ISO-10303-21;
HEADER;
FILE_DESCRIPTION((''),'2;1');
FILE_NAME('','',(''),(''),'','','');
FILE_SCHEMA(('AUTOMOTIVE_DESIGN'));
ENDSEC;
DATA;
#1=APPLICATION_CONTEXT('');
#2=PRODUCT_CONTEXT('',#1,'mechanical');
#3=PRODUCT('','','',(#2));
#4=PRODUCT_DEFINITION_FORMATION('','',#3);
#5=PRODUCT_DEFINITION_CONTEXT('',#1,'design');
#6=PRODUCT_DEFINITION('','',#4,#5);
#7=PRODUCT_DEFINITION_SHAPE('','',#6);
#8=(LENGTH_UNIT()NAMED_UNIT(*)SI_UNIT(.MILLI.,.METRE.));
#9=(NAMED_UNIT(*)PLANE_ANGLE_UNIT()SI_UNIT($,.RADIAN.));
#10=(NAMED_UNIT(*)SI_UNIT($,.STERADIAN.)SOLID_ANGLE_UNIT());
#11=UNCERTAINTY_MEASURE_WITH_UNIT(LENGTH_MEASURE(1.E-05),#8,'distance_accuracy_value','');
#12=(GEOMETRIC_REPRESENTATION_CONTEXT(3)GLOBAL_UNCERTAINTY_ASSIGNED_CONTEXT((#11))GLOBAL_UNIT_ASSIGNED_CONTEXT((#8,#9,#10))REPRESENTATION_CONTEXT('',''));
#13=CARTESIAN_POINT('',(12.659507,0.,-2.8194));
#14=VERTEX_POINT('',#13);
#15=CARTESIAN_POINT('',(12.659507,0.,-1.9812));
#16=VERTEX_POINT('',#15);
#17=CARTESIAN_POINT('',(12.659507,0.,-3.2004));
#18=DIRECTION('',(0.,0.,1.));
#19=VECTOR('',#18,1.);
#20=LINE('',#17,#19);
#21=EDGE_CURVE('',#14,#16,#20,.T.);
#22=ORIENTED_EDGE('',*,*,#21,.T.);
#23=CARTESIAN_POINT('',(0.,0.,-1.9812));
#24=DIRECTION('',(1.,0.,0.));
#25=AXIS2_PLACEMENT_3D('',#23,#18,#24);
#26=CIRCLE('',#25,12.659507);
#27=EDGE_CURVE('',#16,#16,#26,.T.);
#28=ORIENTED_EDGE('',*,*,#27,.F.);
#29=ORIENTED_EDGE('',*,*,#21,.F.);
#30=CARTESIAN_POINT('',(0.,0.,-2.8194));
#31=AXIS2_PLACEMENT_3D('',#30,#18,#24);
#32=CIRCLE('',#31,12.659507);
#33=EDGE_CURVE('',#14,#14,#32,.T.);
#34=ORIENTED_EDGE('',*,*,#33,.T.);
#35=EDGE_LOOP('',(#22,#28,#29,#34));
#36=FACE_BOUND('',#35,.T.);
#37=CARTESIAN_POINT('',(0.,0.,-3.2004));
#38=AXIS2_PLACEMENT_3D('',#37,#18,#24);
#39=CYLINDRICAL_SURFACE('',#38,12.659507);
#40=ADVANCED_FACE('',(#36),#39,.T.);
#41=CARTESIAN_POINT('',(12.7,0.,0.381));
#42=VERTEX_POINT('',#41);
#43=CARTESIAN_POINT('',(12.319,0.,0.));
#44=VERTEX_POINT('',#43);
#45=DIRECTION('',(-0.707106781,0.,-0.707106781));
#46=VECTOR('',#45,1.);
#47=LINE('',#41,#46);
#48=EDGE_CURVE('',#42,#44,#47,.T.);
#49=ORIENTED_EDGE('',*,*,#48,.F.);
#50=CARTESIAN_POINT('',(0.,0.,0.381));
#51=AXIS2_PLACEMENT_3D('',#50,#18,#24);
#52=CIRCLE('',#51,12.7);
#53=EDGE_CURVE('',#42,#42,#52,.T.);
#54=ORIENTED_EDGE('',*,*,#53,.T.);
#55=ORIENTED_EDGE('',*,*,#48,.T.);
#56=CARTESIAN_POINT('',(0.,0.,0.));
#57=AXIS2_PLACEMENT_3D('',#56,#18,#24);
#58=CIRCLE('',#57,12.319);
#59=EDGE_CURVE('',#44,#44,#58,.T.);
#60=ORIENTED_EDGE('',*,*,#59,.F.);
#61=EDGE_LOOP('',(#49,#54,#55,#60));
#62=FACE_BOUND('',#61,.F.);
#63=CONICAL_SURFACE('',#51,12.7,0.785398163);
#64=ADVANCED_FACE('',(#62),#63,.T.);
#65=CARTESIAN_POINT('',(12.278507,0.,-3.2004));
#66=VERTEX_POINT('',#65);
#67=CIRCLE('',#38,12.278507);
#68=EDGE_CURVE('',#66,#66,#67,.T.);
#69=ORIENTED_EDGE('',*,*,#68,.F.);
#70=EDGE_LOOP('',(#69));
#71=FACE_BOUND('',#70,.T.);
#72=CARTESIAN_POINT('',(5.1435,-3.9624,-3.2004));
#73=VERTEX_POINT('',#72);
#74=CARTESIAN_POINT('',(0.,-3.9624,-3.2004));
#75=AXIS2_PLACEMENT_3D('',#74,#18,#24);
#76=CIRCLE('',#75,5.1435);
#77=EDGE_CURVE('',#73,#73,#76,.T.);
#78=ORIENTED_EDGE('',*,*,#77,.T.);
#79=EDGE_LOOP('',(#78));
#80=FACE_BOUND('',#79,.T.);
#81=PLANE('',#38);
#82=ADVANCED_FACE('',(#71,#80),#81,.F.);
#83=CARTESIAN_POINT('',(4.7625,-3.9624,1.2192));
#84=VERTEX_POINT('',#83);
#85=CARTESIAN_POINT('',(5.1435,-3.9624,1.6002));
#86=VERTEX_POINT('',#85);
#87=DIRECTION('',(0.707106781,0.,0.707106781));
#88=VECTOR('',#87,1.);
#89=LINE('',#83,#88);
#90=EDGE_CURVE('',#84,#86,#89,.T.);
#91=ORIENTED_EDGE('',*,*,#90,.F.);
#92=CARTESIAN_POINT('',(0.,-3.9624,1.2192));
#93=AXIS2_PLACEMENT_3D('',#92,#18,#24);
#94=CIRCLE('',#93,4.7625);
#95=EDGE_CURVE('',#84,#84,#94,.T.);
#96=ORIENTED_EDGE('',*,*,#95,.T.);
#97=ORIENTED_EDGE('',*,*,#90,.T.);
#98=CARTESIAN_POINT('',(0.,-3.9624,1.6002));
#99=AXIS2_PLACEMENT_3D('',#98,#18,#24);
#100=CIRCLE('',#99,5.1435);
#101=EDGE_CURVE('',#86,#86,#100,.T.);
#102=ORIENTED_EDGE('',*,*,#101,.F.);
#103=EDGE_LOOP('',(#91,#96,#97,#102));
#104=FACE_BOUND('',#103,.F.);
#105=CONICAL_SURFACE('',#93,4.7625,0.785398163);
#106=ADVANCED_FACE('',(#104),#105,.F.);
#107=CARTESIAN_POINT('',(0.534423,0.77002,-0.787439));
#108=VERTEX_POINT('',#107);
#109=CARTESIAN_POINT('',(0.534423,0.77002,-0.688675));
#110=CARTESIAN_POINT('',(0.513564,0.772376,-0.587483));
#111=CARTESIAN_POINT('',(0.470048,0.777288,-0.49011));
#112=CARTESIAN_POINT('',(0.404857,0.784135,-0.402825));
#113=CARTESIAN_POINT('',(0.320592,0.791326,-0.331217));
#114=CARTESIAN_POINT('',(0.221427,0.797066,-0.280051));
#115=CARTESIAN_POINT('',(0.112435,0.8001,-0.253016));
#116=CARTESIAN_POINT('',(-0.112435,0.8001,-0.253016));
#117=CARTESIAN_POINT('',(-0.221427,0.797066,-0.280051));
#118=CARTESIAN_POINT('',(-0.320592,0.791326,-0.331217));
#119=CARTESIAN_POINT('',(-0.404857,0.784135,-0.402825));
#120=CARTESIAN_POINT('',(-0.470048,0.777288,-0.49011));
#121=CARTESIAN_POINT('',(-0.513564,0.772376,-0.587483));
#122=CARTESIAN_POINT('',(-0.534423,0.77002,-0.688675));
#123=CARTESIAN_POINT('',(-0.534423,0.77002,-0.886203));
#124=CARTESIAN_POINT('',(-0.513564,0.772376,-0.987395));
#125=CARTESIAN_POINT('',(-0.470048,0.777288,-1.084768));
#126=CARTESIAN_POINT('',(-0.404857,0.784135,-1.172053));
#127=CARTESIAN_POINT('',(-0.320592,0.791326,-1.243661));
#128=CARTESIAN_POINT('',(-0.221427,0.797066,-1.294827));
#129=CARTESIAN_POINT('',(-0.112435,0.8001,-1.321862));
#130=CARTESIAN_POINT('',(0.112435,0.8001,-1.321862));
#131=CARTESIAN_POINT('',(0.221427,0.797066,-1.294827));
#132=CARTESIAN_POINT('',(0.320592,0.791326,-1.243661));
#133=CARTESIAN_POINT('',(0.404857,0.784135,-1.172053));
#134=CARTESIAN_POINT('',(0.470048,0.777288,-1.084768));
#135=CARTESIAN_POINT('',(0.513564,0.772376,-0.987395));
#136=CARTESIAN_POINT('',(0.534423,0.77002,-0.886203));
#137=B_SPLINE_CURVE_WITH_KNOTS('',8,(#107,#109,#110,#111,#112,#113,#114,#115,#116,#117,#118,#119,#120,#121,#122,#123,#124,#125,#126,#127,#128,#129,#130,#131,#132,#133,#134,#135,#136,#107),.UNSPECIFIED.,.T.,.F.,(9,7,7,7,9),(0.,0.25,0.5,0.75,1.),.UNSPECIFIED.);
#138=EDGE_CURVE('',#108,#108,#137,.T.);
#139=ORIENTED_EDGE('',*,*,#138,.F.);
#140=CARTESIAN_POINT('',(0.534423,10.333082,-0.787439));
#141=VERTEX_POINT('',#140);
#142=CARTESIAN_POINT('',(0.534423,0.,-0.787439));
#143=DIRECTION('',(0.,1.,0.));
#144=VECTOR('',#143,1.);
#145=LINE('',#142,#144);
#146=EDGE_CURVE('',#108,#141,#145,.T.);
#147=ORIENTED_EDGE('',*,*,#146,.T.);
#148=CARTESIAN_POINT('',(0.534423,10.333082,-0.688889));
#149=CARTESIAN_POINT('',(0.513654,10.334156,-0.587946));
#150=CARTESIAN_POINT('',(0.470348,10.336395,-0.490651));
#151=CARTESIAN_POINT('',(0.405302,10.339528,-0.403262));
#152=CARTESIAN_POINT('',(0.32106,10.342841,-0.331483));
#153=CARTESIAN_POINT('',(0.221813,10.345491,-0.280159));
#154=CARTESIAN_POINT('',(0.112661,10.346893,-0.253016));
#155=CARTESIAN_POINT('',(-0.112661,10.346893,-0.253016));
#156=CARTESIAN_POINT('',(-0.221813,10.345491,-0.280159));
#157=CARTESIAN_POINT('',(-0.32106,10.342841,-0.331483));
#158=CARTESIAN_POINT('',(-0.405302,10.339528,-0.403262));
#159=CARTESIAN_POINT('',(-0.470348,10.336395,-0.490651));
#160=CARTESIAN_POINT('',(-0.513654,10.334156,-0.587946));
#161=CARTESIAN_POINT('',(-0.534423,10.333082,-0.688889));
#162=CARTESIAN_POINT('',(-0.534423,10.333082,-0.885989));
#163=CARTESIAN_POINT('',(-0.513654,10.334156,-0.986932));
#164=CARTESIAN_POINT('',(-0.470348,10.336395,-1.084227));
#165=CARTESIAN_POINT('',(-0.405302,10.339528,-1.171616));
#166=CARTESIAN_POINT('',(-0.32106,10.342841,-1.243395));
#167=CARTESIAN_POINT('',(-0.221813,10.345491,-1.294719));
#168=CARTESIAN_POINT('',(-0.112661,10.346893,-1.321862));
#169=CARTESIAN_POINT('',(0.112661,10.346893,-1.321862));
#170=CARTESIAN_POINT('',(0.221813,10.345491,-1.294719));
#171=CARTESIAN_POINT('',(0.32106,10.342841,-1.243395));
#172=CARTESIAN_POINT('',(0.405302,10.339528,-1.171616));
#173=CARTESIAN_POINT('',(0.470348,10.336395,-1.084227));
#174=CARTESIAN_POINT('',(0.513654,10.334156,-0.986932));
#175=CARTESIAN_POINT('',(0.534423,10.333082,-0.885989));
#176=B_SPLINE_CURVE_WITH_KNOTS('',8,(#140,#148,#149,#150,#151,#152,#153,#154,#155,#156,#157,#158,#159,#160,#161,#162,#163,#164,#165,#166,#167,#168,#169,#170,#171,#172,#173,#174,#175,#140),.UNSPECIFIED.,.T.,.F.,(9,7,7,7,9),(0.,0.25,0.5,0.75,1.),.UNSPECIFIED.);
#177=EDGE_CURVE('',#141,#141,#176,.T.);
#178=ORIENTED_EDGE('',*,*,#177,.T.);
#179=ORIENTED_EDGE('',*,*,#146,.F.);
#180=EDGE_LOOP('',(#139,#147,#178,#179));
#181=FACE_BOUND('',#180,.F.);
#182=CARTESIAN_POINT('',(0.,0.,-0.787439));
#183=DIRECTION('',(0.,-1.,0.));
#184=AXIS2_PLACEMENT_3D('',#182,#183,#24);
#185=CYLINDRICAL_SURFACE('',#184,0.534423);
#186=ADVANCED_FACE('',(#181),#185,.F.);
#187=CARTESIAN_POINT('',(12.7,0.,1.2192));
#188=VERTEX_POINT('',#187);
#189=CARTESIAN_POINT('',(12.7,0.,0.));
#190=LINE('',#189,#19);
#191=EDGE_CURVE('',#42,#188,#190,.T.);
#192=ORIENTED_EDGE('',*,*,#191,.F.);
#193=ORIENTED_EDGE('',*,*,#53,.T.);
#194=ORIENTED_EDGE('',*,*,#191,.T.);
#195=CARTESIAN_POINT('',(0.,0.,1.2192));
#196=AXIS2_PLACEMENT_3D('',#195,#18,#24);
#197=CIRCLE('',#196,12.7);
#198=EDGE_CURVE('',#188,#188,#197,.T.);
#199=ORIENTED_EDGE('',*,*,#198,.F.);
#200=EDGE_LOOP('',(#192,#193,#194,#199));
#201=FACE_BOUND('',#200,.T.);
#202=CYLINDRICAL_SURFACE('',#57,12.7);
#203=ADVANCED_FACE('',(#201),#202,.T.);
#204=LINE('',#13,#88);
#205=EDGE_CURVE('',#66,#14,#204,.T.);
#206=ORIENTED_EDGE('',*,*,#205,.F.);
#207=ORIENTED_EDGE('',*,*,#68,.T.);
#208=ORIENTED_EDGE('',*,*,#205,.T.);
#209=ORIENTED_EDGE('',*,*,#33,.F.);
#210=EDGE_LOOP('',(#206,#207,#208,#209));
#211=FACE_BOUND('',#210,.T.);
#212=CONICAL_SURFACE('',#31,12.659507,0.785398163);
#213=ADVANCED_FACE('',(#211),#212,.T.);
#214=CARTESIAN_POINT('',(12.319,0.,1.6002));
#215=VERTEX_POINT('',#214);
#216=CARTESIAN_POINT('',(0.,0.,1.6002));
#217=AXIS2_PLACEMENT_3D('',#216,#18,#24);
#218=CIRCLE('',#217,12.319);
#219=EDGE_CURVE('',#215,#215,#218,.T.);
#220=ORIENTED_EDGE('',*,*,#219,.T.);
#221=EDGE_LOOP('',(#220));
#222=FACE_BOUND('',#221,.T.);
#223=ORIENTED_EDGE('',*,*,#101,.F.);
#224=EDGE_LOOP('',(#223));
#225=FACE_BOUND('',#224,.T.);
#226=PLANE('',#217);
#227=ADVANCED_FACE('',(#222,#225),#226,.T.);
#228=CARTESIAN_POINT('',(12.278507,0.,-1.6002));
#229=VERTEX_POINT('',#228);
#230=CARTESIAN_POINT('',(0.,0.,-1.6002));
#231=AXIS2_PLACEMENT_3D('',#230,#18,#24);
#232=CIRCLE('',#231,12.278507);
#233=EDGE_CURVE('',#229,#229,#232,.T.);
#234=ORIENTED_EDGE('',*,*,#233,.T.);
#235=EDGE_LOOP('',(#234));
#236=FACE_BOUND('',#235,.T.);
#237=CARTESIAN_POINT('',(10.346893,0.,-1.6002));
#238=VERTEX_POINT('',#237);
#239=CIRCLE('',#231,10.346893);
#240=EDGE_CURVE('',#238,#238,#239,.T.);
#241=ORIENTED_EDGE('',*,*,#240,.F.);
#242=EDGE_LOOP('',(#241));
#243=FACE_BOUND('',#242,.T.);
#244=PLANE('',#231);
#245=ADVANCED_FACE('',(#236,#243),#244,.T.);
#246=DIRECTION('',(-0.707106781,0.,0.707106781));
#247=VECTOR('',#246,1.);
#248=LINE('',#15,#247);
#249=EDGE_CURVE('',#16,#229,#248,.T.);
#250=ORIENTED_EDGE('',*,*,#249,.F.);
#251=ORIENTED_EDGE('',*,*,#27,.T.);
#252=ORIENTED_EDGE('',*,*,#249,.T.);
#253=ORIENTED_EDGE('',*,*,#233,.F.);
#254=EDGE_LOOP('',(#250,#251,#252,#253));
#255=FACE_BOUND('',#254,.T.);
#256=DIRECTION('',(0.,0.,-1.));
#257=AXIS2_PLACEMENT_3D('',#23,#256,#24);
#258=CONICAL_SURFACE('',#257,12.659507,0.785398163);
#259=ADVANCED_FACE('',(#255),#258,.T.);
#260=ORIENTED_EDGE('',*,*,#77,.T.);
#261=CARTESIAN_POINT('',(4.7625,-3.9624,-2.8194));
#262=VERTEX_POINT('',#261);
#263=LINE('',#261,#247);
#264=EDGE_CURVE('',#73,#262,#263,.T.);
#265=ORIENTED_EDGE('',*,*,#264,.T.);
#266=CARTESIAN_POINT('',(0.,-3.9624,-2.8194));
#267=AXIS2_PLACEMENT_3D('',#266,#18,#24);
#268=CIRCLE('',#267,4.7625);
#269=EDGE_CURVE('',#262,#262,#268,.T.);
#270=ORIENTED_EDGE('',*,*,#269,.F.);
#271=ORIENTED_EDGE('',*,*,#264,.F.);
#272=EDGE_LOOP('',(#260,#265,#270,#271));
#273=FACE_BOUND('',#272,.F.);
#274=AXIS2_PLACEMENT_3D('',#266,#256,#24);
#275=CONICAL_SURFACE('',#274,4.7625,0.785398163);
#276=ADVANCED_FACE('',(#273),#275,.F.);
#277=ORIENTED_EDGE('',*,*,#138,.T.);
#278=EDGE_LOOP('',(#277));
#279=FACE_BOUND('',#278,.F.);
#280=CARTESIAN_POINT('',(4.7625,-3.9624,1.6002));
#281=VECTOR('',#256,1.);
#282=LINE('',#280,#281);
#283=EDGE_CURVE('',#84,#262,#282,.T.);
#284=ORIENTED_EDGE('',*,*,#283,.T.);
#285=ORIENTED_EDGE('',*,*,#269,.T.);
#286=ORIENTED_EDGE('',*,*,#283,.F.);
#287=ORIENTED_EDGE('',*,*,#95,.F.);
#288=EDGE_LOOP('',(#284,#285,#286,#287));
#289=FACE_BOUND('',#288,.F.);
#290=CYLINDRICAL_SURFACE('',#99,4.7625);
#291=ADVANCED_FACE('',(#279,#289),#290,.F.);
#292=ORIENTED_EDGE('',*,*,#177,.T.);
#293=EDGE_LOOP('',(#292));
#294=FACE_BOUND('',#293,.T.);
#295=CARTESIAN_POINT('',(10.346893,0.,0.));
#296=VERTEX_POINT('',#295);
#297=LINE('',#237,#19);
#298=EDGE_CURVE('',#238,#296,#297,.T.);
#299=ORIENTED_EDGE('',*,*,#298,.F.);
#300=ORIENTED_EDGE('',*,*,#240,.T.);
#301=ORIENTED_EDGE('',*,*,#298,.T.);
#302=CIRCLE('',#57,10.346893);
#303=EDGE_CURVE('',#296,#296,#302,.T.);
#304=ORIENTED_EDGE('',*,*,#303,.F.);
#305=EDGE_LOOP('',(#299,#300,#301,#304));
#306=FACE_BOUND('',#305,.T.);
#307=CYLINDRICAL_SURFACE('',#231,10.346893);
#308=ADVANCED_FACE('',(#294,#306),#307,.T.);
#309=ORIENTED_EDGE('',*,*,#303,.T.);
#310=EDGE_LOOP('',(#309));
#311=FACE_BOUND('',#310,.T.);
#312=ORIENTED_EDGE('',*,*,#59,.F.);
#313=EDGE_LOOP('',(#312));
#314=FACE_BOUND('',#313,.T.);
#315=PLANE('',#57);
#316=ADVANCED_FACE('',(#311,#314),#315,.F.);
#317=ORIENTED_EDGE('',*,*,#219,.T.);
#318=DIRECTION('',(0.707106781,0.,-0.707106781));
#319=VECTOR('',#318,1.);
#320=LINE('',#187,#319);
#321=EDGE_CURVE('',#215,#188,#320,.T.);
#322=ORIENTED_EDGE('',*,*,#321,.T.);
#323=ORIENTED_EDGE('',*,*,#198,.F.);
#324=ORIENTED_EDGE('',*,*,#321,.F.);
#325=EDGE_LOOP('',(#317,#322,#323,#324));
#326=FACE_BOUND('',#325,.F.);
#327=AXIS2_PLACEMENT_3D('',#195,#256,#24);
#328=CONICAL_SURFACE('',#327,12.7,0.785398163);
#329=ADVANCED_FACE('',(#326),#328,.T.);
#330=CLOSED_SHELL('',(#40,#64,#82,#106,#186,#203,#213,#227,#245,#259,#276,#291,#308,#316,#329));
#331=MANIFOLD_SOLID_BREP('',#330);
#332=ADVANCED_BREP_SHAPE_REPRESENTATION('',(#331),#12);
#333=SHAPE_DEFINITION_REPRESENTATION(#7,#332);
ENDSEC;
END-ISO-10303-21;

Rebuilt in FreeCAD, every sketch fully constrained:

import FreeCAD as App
import Part
import Sketcher
from FreeCAD import Vector
Q = App.Units.Quantity


def edges_at(feature, points):
    """Names of the edges that pass closest to the given points."""
    edges = feature.Shape.Edges
    near = lambda p: min(range(len(edges)), key=lambda i: edges[i].distToShape(Part.Vertex(*p))[0])
    return sorted({f"Edge{near(p) + 1}" for p in points})

doc = App.newDocument("Part")
body = doc.addObject("PartDesign::Body", "Body")

# Sketch on XZ plane
sketch1 = body.newObject("Sketcher::SketchObject", "Sketch")
sketch1.AttachmentSupport = (doc.getObject("XZ_Plane"), [""])
sketch1.MapMode = "FlatFace"
sketch1.addGeometry([
    Part.LineSegment(Vector(0, 1.6, 0), Vector(0, -3.2, 0)),  # 0
    Part.LineSegment(Vector(0, -3.2, 0), Vector(12.7, -3.2, 0)),  # 1
    Part.LineSegment(Vector(12.7, -3.2, 0), Vector(12.7, -1.6, 0)),  # 2
    Part.LineSegment(Vector(12.7, -1.6, 0), Vector(10.3, -1.6, 0)),  # 3
    Part.LineSegment(Vector(10.3, -1.6, 0), Vector(10.3, 0, 0)),  # 4
    Part.LineSegment(Vector(10.3, 0, 0), Vector(12.7, 0, 0)),  # 5
    Part.LineSegment(Vector(12.7, 0, 0), Vector(12.7, 1.6, 0)),  # 6
    Part.LineSegment(Vector(12.7, 1.6, 0), Vector(0, 1.6, 0)),  # 7
], False)
sketch1.addConstraint([
    Sketcher.Constraint("Coincident", 0, 2, 1, 1),
    Sketcher.Constraint("Coincident", 1, 2, 2, 1),
    Sketcher.Constraint("Coincident", 2, 2, 3, 1),
    Sketcher.Constraint("Coincident", 3, 2, 4, 1),
    Sketcher.Constraint("Coincident", 4, 2, 5, 1),
    Sketcher.Constraint("Coincident", 5, 2, 6, 1),
    Sketcher.Constraint("Coincident", 6, 2, 7, 1),
    Sketcher.Constraint("Coincident", 7, 2, 0, 1),
    Sketcher.Constraint("Vertical", 0),
    Sketcher.Constraint("Horizontal", 1),
    Sketcher.Constraint("Vertical", 2),
    Sketcher.Constraint("Horizontal", 3),
    Sketcher.Constraint("Vertical", 4),
    Sketcher.Constraint("Horizontal", 5),
    Sketcher.Constraint("Vertical", 6),
    Sketcher.Constraint("Horizontal", 7),
    Sketcher.Constraint("PointOnObject", 0, 2, -2),
    Sketcher.Constraint("PointOnObject", 4, 2, -1),
    Sketcher.Constraint("Equal", 2, 4),
    Sketcher.Constraint("Equal", 4, 6),
    Sketcher.Constraint("DistanceX", 7, 2, 7, 1, Q("0.5 in")),
    Sketcher.Constraint("DistanceY", 0, 2, 0, 1, Q("0.189 in")),
    Sketcher.Constraint("DistanceX", 1, 1, 1, 2, Q("12.659507 mm")),
    Sketcher.Constraint("DistanceX", 3, 2, 3, 1, Q("2.312614 mm")),
])
revolution = body.newObject("PartDesign::Revolution", "Revolution")
revolution.Profile = sketch1
revolution.ReferenceAxis = (sketch1, ["V_Axis"])
revolution.Angle = 360

# Sketch on XY plane
sketch2 = body.newObject("Sketcher::SketchObject", "Sketch001")
sketch2.AttachmentSupport = (doc.getObject("XY_Plane"), [""])
sketch2.MapMode = "FlatFace"
sketch2.AttachmentOffset = App.Placement(Vector(0, 0, 0.063 * 25.4), App.Rotation())
sketch2.addGeometry(Part.Circle(Vector(0, -4, 0), Vector(0, 0, 1), 4.8), False)
sketch2.addConstraint([
    Sketcher.Constraint("PointOnObject", 0, 3, -2),
    Sketcher.Constraint("Diameter", 0, Q("0.375 in")),
    Sketcher.Constraint("DistanceY", 0, 3, -1, 1, Q("0.156 in")),
])
pocket1 = body.newObject("PartDesign::Pocket", "Pocket")
pocket1.Profile = sketch2
pocket1.Length = Q("0.2 in")
doc.recompute()

chamfer = body.newObject("PartDesign::Chamfer", "Chamfer")
chamfer.Base = (pocket1, edges_at(pocket1, [
    (-4.763, -3.962, 1.6),
    (-12.7, 0, 1.6),
    (-12.7, 0, 0),
    (-12.66, 0, -1.6),
    (-12.66, 0, -3.2),
    (-4.763, -3.962, -3.2),
]))
chamfer.Size = Q("0.015 in")

# Sketch on XZ plane
sketch3 = body.newObject("Sketcher::SketchObject", "Sketch002")
sketch3.AttachmentSupport = (doc.getObject("XZ_Plane"), [""])
sketch3.MapMode = "FlatFace"
sketch3.addGeometry(Part.Circle(Vector(0, -0.8, 0), Vector(0, 0, 1), 0.5), False)
sketch3.addConstraint([
    Sketcher.Constraint("PointOnObject", 0, 3, -2),
    Sketcher.Constraint("Diameter", 0, Q("1.068846 mm")),
    Sketcher.Constraint("DistanceY", 0, 3, -1, 1, Q("0.787439 mm")),
])
pocket2 = body.newObject("PartDesign::Pocket", "Pocket001")
pocket2.Profile = sketch3
pocket2.Length = Q("1 in")

doc.recompute()
